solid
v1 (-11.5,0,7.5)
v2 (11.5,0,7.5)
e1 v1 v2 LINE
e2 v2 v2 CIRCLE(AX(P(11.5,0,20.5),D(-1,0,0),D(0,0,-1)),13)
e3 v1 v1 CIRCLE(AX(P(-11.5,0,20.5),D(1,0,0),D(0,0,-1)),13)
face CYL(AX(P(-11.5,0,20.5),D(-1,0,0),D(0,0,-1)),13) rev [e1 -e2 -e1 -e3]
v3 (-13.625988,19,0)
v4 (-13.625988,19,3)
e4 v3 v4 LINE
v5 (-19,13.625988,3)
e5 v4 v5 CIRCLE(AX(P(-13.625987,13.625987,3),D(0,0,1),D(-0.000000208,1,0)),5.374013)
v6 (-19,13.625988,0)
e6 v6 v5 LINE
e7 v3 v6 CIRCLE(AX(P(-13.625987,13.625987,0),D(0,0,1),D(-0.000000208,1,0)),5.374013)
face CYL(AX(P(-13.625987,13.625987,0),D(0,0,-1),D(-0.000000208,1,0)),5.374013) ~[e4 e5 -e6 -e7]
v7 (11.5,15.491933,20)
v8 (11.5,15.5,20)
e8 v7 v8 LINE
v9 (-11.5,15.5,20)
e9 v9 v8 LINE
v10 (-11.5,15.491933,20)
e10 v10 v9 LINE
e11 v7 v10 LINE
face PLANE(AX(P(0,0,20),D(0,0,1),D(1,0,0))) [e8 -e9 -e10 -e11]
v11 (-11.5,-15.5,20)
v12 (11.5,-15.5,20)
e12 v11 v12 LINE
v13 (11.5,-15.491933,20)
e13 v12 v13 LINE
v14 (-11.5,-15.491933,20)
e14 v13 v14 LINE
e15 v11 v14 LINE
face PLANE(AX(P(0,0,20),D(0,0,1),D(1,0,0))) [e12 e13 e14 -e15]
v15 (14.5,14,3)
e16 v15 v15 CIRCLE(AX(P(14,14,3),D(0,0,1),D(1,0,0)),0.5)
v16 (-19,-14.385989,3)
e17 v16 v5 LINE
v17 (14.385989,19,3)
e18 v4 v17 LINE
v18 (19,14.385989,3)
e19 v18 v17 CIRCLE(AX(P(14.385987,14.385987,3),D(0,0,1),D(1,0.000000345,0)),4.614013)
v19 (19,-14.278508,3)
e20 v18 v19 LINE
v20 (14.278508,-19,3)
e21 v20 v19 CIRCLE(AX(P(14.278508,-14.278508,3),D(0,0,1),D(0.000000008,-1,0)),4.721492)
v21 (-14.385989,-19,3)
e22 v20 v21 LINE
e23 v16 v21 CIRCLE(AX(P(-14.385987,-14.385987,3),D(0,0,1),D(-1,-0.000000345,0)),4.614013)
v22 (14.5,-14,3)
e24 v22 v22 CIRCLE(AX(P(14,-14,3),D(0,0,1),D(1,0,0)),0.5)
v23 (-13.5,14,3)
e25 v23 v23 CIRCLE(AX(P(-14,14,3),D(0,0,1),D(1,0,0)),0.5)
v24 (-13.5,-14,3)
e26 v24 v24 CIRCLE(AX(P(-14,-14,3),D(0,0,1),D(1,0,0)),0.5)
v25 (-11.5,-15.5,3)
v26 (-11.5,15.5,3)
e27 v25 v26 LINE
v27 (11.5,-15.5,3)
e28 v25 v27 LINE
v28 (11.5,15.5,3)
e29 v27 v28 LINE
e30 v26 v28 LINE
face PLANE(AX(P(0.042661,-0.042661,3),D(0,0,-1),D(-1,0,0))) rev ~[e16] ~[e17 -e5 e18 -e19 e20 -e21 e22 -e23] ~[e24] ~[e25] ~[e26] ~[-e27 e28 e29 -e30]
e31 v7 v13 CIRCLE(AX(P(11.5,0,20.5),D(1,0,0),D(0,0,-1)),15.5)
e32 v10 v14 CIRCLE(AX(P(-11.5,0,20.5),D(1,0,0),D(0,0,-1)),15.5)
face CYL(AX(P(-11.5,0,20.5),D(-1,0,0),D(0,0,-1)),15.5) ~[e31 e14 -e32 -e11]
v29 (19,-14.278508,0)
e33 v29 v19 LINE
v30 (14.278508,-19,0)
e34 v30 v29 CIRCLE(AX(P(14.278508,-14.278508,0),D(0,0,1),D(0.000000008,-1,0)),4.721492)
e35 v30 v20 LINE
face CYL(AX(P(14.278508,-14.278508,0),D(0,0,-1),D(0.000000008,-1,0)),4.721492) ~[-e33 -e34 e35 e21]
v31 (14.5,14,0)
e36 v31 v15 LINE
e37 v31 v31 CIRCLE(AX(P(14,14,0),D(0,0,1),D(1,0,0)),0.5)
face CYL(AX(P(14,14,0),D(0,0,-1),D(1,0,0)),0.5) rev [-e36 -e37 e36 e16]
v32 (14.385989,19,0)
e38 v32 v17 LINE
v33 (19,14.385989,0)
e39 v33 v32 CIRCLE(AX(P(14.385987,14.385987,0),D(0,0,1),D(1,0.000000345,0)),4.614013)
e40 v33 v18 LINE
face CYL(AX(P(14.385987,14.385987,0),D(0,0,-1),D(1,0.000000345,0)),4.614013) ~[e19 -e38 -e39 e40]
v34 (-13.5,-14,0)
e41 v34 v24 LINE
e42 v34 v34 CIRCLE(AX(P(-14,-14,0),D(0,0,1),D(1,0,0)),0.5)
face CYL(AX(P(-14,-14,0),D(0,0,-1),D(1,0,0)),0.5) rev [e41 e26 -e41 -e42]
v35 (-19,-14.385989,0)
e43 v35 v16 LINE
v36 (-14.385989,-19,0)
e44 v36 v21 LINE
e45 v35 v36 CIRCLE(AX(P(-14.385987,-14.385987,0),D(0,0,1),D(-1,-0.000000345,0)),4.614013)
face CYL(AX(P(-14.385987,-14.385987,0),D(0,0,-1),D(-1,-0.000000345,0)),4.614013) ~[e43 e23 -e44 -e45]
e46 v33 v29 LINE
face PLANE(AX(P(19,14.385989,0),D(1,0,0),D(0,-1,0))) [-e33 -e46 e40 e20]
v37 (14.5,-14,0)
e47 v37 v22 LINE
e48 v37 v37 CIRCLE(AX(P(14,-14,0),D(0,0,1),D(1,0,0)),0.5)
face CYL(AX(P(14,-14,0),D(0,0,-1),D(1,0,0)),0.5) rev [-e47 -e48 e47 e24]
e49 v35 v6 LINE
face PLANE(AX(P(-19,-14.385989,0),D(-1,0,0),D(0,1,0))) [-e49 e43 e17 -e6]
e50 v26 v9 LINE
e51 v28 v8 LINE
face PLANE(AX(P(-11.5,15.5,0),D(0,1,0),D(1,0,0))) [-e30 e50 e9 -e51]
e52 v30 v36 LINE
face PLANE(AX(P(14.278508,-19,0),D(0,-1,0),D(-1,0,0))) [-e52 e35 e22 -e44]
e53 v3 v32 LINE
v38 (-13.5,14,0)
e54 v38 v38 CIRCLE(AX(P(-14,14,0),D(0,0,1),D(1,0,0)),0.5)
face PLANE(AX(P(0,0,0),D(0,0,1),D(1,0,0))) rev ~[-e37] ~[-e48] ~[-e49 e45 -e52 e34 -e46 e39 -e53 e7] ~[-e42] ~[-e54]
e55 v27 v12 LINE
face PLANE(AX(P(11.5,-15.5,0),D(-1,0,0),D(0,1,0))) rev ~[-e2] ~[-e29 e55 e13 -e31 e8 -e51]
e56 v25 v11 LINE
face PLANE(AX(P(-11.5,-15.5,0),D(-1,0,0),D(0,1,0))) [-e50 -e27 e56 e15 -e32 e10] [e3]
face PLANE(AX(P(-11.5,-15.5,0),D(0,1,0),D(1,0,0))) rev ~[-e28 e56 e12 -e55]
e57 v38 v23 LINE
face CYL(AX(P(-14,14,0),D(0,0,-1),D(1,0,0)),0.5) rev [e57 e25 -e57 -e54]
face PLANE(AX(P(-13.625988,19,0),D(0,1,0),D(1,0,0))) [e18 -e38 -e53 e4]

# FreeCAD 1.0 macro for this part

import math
import FreeCAD as App
import Part
import Sketcher


def add_polygon(sketch, points):
    """Adds a closed chain of lines whose ends are joined by coincident constraints."""
    first, n = sketch.GeometryCount, len(points)
    for a, b in zip(points, points[1:] + points[:1]):
        sketch.addGeometry(Part.LineSegment(App.Vector(*a, 0), App.Vector(*b, 0)), False)
    for i in range(n):
        sketch.addConstraint(Sketcher.Constraint("Coincident", first + i, 2, first + (i + 1) % n, 1))

doc = App.newDocument("Part")
body = doc.addObject("PartDesign::Body", "Body")

# Sketch on YZ plane
sketch1 = body.newObject("Sketcher::SketchObject", "Sketch")
sketch1.AttachmentSupport = (doc.getObject("YZ_Plane"), [""])
sketch1.MapMode = "FlatFace"
sketch1.addGeometry(Part.Circle(App.Vector(0, 7, 0), App.Vector(0, 0, 1), 13), False)
sketch1.addConstraint([
    Sketcher.Constraint("PointOnObject", 0, 3, -2),
    Sketcher.Constraint("Diameter", 0, 26.0),
    Sketcher.Constraint("DistanceY", -1, 1, 0, 3, 7.0),
])
pad1 = body.newObject("PartDesign::Pad", "Pad")
pad1.Profile = sketch1
pad1.Length = 23
body2 = doc.addObject("PartDesign::Body", "Body001")

# Sketch on YZ plane
sketch2 = body2.newObject("Sketcher::SketchObject", "Sketch001")
sketch2.AttachmentSupport = (doc.getObject("YZ_Plane001"), [""])
sketch2.MapMode = "FlatFace"
sketch2.addGeometry(Part.Circle(App.Vector(0, 7, 0), App.Vector(0, 0, 1), 15.5), False)
sketch2.addConstraint([
    Sketcher.Constraint("PointOnObject", 0, 3, -2),
    Sketcher.Constraint("Diameter", 0, 31.0),
    Sketcher.Constraint("DistanceY", -1, 1, 0, 3, 7.0),
])
pad2 = body2.newObject("PartDesign::Pad", "Pad001")
pad2.Profile = sketch2
pad2.Length = 23
doc.recompute()

boolean = body2.newObject("PartDesign::Boolean", "Boolean")
boolean.Type = "Cut"
boolean.addObjects([body])
body3 = doc.addObject("PartDesign::Body", "Body002")
doc.recompute()

body2.Placement = App.Placement(App.Vector(-11.5, 0, 13.5), App.Rotation(App.Vector(0, 0, 1), 0))
boolean2 = body3.newObject("PartDesign::Boolean", "Boolean001")
boolean2.Type = "Fuse"
boolean2.addObjects([body2])
body4 = doc.addObject("PartDesign::Body", "Body003")

# Sketch on YZ plane
sketch3 = body4.newObject("Sketcher::SketchObject", "Sketch002")
sketch3.AttachmentSupport = (doc.getObject("YZ_Plane003"), [""])
sketch3.MapMode = "FlatFace"
sketch3.AttachmentOffset = App.Placement(App.Vector(0, 0, -17), App.Rotation())
sketch3.addGeometry(Part.Circle(App.Vector(0, 20.5, 0), App.Vector(0, 0, 1), 13), False)
sketch3.addConstraint([
    Sketcher.Constraint("PointOnObject", 0, 3, -2),
    Sketcher.Constraint("Diameter", 0, 26.0),
    Sketcher.Constraint("DistanceY", -1, 1, 0, 3, 20.5),
])
pad3 = body4.newObject("PartDesign::Pad", "Pad002")
pad3.Profile = sketch3
pad3.Length = 40
body5 = doc.addObject("PartDesign::Body", "Body004")

# Sketch on XY plane
sketch4 = body5.newObject("Sketcher::SketchObject", "Sketch003")
sketch4.AttachmentSupport = (doc.getObject("XY_Plane004"), [""])
sketch4.MapMode = "FlatFace"
add_polygon(sketch4, [(-11.5, 15.5), (-11.5, -15.5), (11.5, -15.5), (11.5, 15.5)])  # lines 0-3
sketch4.addConstraint([
    Sketcher.Constraint("Vertical", 0),
    Sketcher.Constraint("Horizontal", 1),
    Sketcher.Constraint("Vertical", 2),
    Sketcher.Constraint("Horizontal", 3),
    Sketcher.Constraint("Symmetric", 0, 2, 2, 2, -1, 1),
    Sketcher.Constraint("DistanceX", 1, 1, 1, 2, 23.0),
    Sketcher.Constraint("DistanceY", 0, 2, 0, 1, 31.0),
])
pad4 = body5.newObject("PartDesign::Pad", "Pad003")
pad4.Profile = sketch4
pad4.Length = 20
doc.recompute()

boolean3 = body5.newObject("PartDesign::Boolean", "Boolean002")
boolean3.Type = "Cut"
boolean3.addObjects([body4])
body6 = doc.addObject("PartDesign::Body", "Body005")
body6.AllowCompound = True

# Sketch on XY plane
sketch5 = body6.newObject("Sketcher::SketchObject", "Sketch004")
sketch5.AttachmentSupport = (doc.getObject("XY_Plane005"), [""])
sketch5.MapMode = "FlatFace"
sketch5.addGeometry([
    Part.LineSegment(App.Vector(14.385989, 19, 0), App.Vector(-13.625988, 19, 0)),  # 0
    Part.ArcOfCircle(Part.Circle(App.Vector(-13.625987, 13.625987, 0), App.Vector(0, 0, 1), 5.374013), math.radians(90.000012), math.radians(179.999988)),  # 1
    Part.LineSegment(App.Vector(-19, 13.625988, 0), App.Vector(-19, -14.385989, 0)),  # 2
    Part.ArcOfCircle(Part.Circle(App.Vector(-14.385987, -14.385987, 0), App.Vector(0, 0, 1), 4.614013), math.radians(-179.99998), math.radians(-90.00002)),  # 3
    Part.LineSegment(App.Vector(-14.385989, -19, 0), App.Vector(14.278508, -19, 0)),  # 4
    Part.ArcOfCircle(Part.Circle(App.Vector(14.278508, -14.278508, 0), App.Vector(0, 0, 1), 4.721492), math.radians(-90), math.radians(0)),  # 5
    Part.LineSegment(App.Vector(19, -14.278508, 0), App.Vector(19, 14.385989, 0)),  # 6
    Part.ArcOfCircle(Part.Circle(App.Vector(14.385987, 14.385987, 0), App.Vector(0, 0, 1), 4.614013), math.radians(0.00002), math.radians(89.99998)),  # 7
    Part.Circle(App.Vector(14, -14, 0), App.Vector(0, 0, 1), 0.5),  # 8
    Part.Circle(App.Vector(-14, -14, 0), App.Vector(0, 0, 1), 0.5),  # 9
    Part.Circle(App.Vector(14, 14, 0), App.Vector(0, 0, 1), 0.5),  # 10
    Part.Circle(App.Vector(-14, 14, 0), App.Vector(0, 0, 1), 0.5),  # 11
], False)
sketch5.addConstraint([
    Sketcher.Constraint("Tangent", 0, 2, 1, 1),
    Sketcher.Constraint("Tangent", 1, 2, 2, 1),
    Sketcher.Constraint("Tangent", 2, 2, 3, 1),
    Sketcher.Constraint("Tangent", 3, 2, 4, 1),
    Sketcher.Constraint("Tangent", 4, 2, 5, 1),
    Sketcher.Constraint("Tangent", 5, 2, 6, 1),
    Sketcher.Constraint("Tangent", 6, 2, 7, 1),
    Sketcher.Constraint("Tangent", 7, 2, 0, 1),
    Sketcher.Constraint("Horizontal", 0),
    Sketcher.Constraint("Vertical", 2),
    Sketcher.Constraint("Horizontal", 4),
    Sketcher.Constraint("Vertical", 6),
    Sketcher.Constraint("Equal", 3, 7),
    Sketcher.Constraint("Equal", 8, 9),
    Sketcher.Constraint("Equal", 9, 10),
    Sketcher.Constraint("Equal", 10, 11),
    Sketcher.Constraint("Symmetric", 3, 3, 7, 3, -1, 1),
    Sketcher.Constraint("Symmetric", 9, 3, 10, 3, -1, 1),
    Sketcher.Constraint("Symmetric", 8, 3, 11, 3, -1, 1),
    Sketcher.Constraint("Symmetric", 8, 3, 9, 3, -2),
    Sketcher.Constraint("Equal", 0, 2),
    Sketcher.Constraint("Diameter", 8, 1.0),
    Sketcher.Constraint("DistanceX", -1, 1, 8, 3, 14.0),
    Sketcher.Constraint("DistanceY", 8, 3, -1, 1, 14.0),
    Sketcher.Constraint("DistanceY", -1, 1, 0, 2, 19.0),
    Sketcher.Constraint("DistanceX", 3, 3, 1, 3, 0.760001),
    Sketcher.Constraint("Radius", 1, 5.374013),
    Sketcher.Constraint("Radius", 5, 4.721492),
])
pad5 = body6.newObject("PartDesign::Pad", "Pad004")
pad5.Profile = sketch5
pad5.Length = 3
doc.recompute()

boolean4 = body6.newObject("PartDesign::Boolean", "Boolean003")
boolean4.Type = "Fuse"
boolean4.addObjects([body3])
doc.recompute()

boolean5 = body6.newObject("PartDesign::Boolean", "Boolean004")
boolean5.Type = "Fuse"
boolean5.addObjects([body5])

doc.recompute()
